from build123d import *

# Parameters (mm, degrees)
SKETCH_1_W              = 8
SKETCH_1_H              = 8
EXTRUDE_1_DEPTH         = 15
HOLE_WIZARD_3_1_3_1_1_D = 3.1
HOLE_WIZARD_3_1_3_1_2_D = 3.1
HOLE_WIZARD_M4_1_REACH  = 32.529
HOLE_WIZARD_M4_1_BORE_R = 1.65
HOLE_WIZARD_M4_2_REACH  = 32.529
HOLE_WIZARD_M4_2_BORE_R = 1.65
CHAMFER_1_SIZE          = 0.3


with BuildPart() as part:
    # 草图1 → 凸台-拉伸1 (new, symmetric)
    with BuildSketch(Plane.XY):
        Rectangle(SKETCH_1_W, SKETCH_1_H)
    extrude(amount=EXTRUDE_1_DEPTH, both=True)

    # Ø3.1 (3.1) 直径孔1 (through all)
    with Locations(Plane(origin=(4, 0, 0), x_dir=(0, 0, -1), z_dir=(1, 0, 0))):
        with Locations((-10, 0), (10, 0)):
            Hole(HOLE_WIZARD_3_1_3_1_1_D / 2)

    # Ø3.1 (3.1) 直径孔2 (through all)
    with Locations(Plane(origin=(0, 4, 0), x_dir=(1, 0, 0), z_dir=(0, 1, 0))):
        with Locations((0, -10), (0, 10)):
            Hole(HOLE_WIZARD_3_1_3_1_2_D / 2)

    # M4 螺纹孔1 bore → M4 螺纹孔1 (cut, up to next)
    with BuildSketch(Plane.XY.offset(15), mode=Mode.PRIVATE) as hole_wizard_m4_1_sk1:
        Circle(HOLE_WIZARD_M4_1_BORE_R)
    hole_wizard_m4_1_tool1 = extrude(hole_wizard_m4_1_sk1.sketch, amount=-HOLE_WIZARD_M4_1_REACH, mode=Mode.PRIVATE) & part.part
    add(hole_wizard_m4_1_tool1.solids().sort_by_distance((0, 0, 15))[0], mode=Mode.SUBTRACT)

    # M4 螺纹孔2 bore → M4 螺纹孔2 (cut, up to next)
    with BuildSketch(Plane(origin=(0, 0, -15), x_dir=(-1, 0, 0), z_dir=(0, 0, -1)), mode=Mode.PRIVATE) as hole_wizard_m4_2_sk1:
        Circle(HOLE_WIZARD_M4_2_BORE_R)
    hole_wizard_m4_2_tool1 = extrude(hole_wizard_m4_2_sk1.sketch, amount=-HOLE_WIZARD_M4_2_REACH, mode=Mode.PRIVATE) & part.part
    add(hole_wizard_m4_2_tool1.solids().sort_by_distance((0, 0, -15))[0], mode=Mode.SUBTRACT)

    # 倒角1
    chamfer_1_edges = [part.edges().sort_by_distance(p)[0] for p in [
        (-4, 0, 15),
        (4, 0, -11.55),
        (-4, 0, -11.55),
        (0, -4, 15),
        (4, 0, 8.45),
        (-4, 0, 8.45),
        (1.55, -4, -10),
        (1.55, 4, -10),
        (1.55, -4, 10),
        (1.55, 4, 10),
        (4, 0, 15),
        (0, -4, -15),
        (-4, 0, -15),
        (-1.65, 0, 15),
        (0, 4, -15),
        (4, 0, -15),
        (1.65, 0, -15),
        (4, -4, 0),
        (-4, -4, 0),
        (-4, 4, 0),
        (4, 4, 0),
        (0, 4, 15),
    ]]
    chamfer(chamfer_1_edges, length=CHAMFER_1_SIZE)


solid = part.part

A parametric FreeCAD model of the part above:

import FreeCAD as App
import Part
import Sketcher
from FreeCAD import Vector


def edges_at(feature, points):
    """Names of the edges that pass closest to the given points."""
    edges = feature.Shape.Edges
    near = lambda p: min(range(len(edges)), key=lambda i: edges[i].distToShape(Part.Vertex(*p))[0])
    return sorted({f"Edge{near(p) + 1}" for p in points})


def add_polygon(sketch, points):
    """Adds a closed chain of lines whose ends are joined by coincident constraints."""
    first, n = sketch.GeometryCount, len(points)
    for a, b in zip(points, points[1:] + points[:1]):
        sketch.addGeometry(Part.LineSegment(App.Vector(*a, 0), App.Vector(*b, 0)), False)
    for i in range(n):
        sketch.addConstraint(Sketcher.Constraint("Coincident", first + i, 2, first + (i + 1) % n, 1))

doc = App.newDocument("Part")
body = doc.addObject("PartDesign::Body", "Body")

# Sketch on XY plane
sketch1 = doc.addObject("Sketcher::SketchObject", "Sketch")
body.addObject(sketch1)
sketch1.AttachmentSupport = (doc.XY_Plane, [""])
sketch1.MapMode = "FlatFace"
add_polygon(sketch1, [(-4, 4), (-4, -4), (4, -4), (4, 4)])  # lines 0-3
sketch1.addConstraint(Sketcher.Constraint("Vertical", 0))
sketch1.addConstraint(Sketcher.Constraint("Horizontal", 1))
sketch1.addConstraint(Sketcher.Constraint("Vertical", 2))
sketch1.addConstraint(Sketcher.Constraint("Horizontal", 3))
sketch1.addConstraint(Sketcher.Constraint("Symmetric", 0, 2, 2, 2, -1, 1))
sketch1.addConstraint(Sketcher.Constraint("Equal", 3, 0))
sketch1.addConstraint(Sketcher.Constraint("DistanceX", 1, 1, 1, 2, 8.0))
pad1 = doc.addObject("PartDesign::Pad", "Pad")
body.addObject(pad1)
pad1.Profile = sketch1
pad1.Length = 30
pad1.Midplane = True

# Sketch on YZ plane
sketch2 = doc.addObject("Sketcher::SketchObject", "Sketch001")
body.addObject(sketch2)
sketch2.AttachmentSupport = (doc.YZ_Plane, [""])
sketch2.MapMode = "FlatFace"
sketch2.AttachmentOffset = App.Placement(Vector(0, 0, 4), App.Rotation())
sketch2.addGeometry(Part.Circle(Vector(0, 10, 0), Vector(0, 0, 1), 1.55), False)
sketch2.addGeometry(Part.Circle(Vector(0, -10, 0), Vector(0, 0, 1), 1.55), False)
sketch2.addConstraint(Sketcher.Constraint("Equal", 0, 1))
sketch2.addConstraint(Sketcher.Constraint("Symmetric", 0, 3, 1, 3, -1, 1))
sketch2.addConstraint(Sketcher.Constraint("PointOnObject", 0, 3, -2))
sketch2.addConstraint(Sketcher.Constraint("Diameter", 0, 3.1))
sketch2.addConstraint(Sketcher.Constraint("DistanceY", -1, 1, 0, 3, 10.0))
doc.recompute()
hole = doc.addObject("PartDesign::Hole", "Hole")
body.addObject(hole)
hole.Profile = sketch2
hole.ThreadType = "None"
hole.Diameter = 3.1
hole.DepthType = "ThroughAll"

# Sketch on XZ plane
sketch3 = doc.addObject("Sketcher::SketchObject", "Sketch002")
body.addObject(sketch3)
sketch3.AttachmentSupport = (doc.XZ_Plane, [""])
sketch3.MapMode = "FlatFace"
sketch3.AttachmentOffset = App.Placement(Vector(0, 0, -4), App.Rotation())
sketch3.addGeometry(Part.Circle(Vector(0, 10, 0), Vector(0, 0, 1), 1.55), False)
sketch3.addGeometry(Part.Circle(Vector(0, -10, 0), Vector(0, 0, 1), 1.55), False)
sketch3.addConstraint(Sketcher.Constraint("Equal", 0, 1))
sketch3.addConstraint(Sketcher.Constraint("Symmetric", 0, 3, 1, 3, -1, 1))
sketch3.addConstraint(Sketcher.Constraint("PointOnObject", 0, 3, -2))
sketch3.addConstraint(Sketcher.Constraint("Diameter", 0, 3.1))
sketch3.addConstraint(Sketcher.Constraint("DistanceY", -1, 1, 0, 3, 10.0))
doc.recompute()
hole2 = doc.addObject("PartDesign::Hole", "Hole001")
body.addObject(hole2)
hole2.Profile = sketch3
hole2.ThreadType = "None"
hole2.Diameter = 3.1
hole2.DepthType = "ThroughAll"
hole2.Reversed = True

# Sketch on XY plane
sketch4 = doc.addObject("Sketcher::SketchObject", "Sketch003")
body.addObject(sketch4)
sketch4.AttachmentSupport = (doc.XY_Plane, [""])
sketch4.MapMode = "FlatFace"
sketch4.AttachmentOffset = App.Placement(Vector(0, 0, 15), App.Rotation())
sketch4.addGeometry(Part.Circle(Vector(0, 0, 0), Vector(0, 0, 1), 1.65), False)
sketch4.addConstraint(Sketcher.Constraint("Coincident", 0, 3, -1, 1))
sketch4.addConstraint(Sketcher.Constraint("Diameter", 0, 3.3))
pocket1 = doc.addObject("PartDesign::Pocket", "Pocket")
body.addObject(pocket1)
pocket1.Profile = sketch4
pocket1.Length = 3.979583

# Sketch on XY plane
sketch5 = doc.addObject("Sketcher::SketchObject", "Sketch004")
body.addObject(sketch5)
sketch5.AttachmentSupport = (doc.XY_Plane, [""])
sketch5.MapMode = "FlatFace"
sketch5.AttachmentOffset = App.Placement(Vector(0, 0, -15), App.Rotation())
sketch5.addGeometry(Part.Circle(Vector(0, 0, 0), Vector(0, 0, 1), 1.65), False)
sketch5.addConstraint(Sketcher.Constraint("Coincident", 0, 3, -1, 1))
sketch5.addConstraint(Sketcher.Constraint("Diameter", 0, 3.3))
pocket2 = doc.addObject("PartDesign::Pocket", "Pocket001")
body.addObject(pocket2)
pocket2.Profile = sketch5
pocket2.Length = 3.979583
pocket2.Reversed = True
doc.recompute()

chamfer = doc.addObject("PartDesign::Chamfer", "Chamfer")
body.addObject(chamfer)
chamfer.Base = (pocket2, edges_at(pocket2, [
    (-4, 0, 15),
    (4, 0, -11.55),
    (-4, 0, -11.55),
    (0, -4, 15),
    (4, 0, 8.45),
    (-4, 0, 8.45),
    (1.55, -4, -10),
    (1.55, 4, -10),
    (1.55, -4, 10),
    (1.55, 4, 10),
    (4, 0, 15),
    (0, -4, -15),
    (-4, 0, -15),
    (-1.65, 0, 15),
    (0, 4, -15),
    (4, 0, -15),
    (1.65, 0, -15),
    (4, -4, 0),
    (-4, -4, 0),
    (-4, 4, 0),
    (4, 4, 0),
    (0, 4, 15),
]))
chamfer.Size = 0.3

doc.recompute()
